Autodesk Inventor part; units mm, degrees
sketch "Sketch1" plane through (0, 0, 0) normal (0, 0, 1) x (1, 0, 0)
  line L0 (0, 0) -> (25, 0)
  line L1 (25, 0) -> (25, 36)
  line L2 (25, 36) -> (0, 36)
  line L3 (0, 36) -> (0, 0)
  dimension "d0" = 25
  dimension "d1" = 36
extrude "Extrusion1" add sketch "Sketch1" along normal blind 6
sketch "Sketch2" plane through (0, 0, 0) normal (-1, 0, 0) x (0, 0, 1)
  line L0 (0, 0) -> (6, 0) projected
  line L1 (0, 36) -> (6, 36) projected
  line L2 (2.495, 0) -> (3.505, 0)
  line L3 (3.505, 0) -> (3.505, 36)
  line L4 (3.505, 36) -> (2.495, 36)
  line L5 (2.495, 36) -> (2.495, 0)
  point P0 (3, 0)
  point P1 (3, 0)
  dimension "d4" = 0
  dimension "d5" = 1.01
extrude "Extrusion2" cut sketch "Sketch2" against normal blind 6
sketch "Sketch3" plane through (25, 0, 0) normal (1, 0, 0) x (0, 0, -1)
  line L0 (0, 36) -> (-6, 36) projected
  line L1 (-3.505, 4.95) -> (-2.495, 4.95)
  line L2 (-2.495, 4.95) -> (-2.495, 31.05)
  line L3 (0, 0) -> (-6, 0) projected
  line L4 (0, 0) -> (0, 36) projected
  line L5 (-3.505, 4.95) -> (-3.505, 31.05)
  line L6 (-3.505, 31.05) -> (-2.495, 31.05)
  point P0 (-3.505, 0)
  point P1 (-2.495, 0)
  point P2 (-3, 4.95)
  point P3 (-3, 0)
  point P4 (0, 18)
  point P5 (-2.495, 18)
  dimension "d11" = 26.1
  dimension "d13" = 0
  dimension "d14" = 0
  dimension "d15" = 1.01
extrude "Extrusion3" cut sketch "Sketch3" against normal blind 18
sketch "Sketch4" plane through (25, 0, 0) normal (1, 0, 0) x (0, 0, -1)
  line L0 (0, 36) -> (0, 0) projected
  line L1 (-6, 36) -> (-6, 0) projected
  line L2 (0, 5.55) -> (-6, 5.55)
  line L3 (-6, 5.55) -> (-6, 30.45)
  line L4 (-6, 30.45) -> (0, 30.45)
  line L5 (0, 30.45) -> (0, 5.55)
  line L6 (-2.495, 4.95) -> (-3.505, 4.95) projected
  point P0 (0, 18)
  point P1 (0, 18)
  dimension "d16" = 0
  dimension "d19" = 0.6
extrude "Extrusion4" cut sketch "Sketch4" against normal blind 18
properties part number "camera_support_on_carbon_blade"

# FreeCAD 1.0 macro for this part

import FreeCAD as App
import Part
import Sketcher

doc = App.newDocument("Part")
body = doc.addObject("PartDesign::Body", "Body")

sketch1 = doc.addObject("Sketcher::SketchObject", "Sketch")
body.addObject(sketch1)
sketch1.AttachmentSupport = (doc.XY_Plane, [""])
sketch1.MapMode = "FlatFace"
sketch1.addGeometry(Part.LineSegment(App.Vector(0, 36, 0), App.Vector(0, 0, 0)), False)
sketch1.addGeometry(Part.LineSegment(App.Vector(0, 0, 0), App.Vector(25, 0, 0)), False)
sketch1.addGeometry(Part.LineSegment(App.Vector(25, 0, 0), App.Vector(25, 36, 0)), False)
sketch1.addGeometry(Part.LineSegment(App.Vector(25, 36, 0), App.Vector(0, 36, 0)), False)
sketch1.addConstraint(Sketcher.Constraint("Coincident", 0, 2, 1, 1))
sketch1.addConstraint(Sketcher.Constraint("Coincident", 1, 2, 2, 1))
sketch1.addConstraint(Sketcher.Constraint("Coincident", 2, 2, 3, 1))
sketch1.addConstraint(Sketcher.Constraint("Coincident", 3, 2, 0, 1))
sketch1.addConstraint(Sketcher.Constraint("Vertical", 0))
sketch1.addConstraint(Sketcher.Constraint("Horizontal", 1))
sketch1.addConstraint(Sketcher.Constraint("Vertical", 2))
sketch1.addConstraint(Sketcher.Constraint("Horizontal", 3))
sketch1.addConstraint(Sketcher.Constraint("Coincident", 0, 2, -1, 1))
sketch1.addConstraint(Sketcher.Constraint("DistanceX", 1, 1, 1, 2, 25.0))
sketch1.addConstraint(Sketcher.Constraint("DistanceY", 0, 2, 0, 1, 36.0))
pad1 = doc.addObject("PartDesign::Pad", "Pad")
body.addObject(pad1)
pad1.Profile = sketch1
pad1.Length = 6

sketch2 = doc.addObject("Sketcher::SketchObject", "Sketch001")
body.addObject(sketch2)
sketch2.AttachmentSupport = (doc.YZ_Plane, [""])
sketch2.MapMode = "FlatFace"
sketch2.addGeometry(Part.LineSegment(App.Vector(36, 2.5, 0), App.Vector(0, 2.5, 0)), False)
sketch2.addGeometry(Part.LineSegment(App.Vector(0, 2.5, 0), App.Vector(0, 3.5, 0)), False)
sketch2.addGeometry(Part.LineSegment(App.Vector(0, 3.5, 0), App.Vector(36, 3.5, 0)), False)
sketch2.addGeometry(Part.LineSegment(App.Vector(36, 3.5, 0), App.Vector(36, 2.5, 0)), False)
sketch2.addConstraint(Sketcher.Constraint("Coincident", 0, 2, 1, 1))
sketch2.addConstraint(Sketcher.Constraint("Coincident", 1, 2, 2, 1))
sketch2.addConstraint(Sketcher.Constraint("Coincident", 2, 2, 3, 1))
sketch2.addConstraint(Sketcher.Constraint("Coincident", 3, 2, 0, 1))
sketch2.addConstraint(Sketcher.Constraint("Horizontal", 0))
sketch2.addConstraint(Sketcher.Constraint("Vertical", 1))
sketch2.addConstraint(Sketcher.Constraint("Horizontal", 2))
sketch2.addConstraint(Sketcher.Constraint("Vertical", 3))
sketch2.addConstraint(Sketcher.Constraint("PointOnObject", 0, 2, -2))
sketch2.addConstraint(Sketcher.Constraint("DistanceY", 1, 1, 1, 2, 1.01))
sketch2.addConstraint(Sketcher.Constraint("DistanceX", 0, 2, 0, 1, 36.0))
sketch2.addConstraint(Sketcher.Constraint("DistanceY", -1, 1, 0, 2, 2.495))
pocket1 = doc.addObject("PartDesign::Pocket", "Pocket")
body.addObject(pocket1)
pocket1.Profile = sketch2
pocket1.Length = 6
pocket1.Reversed = True

sketch3 = doc.addObject("Sketcher::SketchObject", "Sketch002")
body.addObject(sketch3)
sketch3.AttachmentSupport = (doc.YZ_Plane, [""])
sketch3.MapMode = "FlatFace"
sketch3.AttachmentOffset = App.Placement(App.Vector(0, 0, 25), App.Rotation())
sketch3.addGeometry(Part.LineSegment(App.Vector(31.1, 3.5, 0), App.Vector(5, 3.5, 0)), False)
sketch3.addGeometry(Part.LineSegment(App.Vector(5, 3.5, 0), App.Vector(5, 2.5, 0)), False)
sketch3.addGeometry(Part.LineSegment(App.Vector(5, 2.5, 0), App.Vector(31.1, 2.5, 0)), False)
sketch3.addGeometry(Part.LineSegment(App.Vector(31.1, 2.5, 0), App.Vector(31.1, 3.5, 0)), False)
sketch3.addConstraint(Sketcher.Constraint("Coincident", 0, 2, 1, 1))
sketch3.addConstraint(Sketcher.Constraint("Coincident", 1, 2, 2, 1))
sketch3.addConstraint(Sketcher.Constraint("Coincident", 2, 2, 3, 1))
sketch3.addConstraint(Sketcher.Constraint("Coincident", 3, 2, 0, 1))
sketch3.addConstraint(Sketcher.Constraint("Horizontal", 0))
sketch3.addConstraint(Sketcher.Constraint("Vertical", 1))
sketch3.addConstraint(Sketcher.Constraint("Horizontal", 2))
sketch3.addConstraint(Sketcher.Constraint("Vertical", 3))
sketch3.addConstraint(Sketcher.Constraint("DistanceX", 0, 2, 0, 1, 26.1))
sketch3.addConstraint(Sketcher.Constraint("DistanceY", 1, 2, 1, 1, 1.01))
sketch3.addConstraint(Sketcher.Constraint("DistanceX", -1, 1, 0, 2, 4.95))
sketch3.addConstraint(Sketcher.Constraint("DistanceY", -1, 1, 0, 2, 3.505))
pocket2 = doc.addObject("PartDesign::Pocket", "Pocket001")
body.addObject(pocket2)
pocket2.Profile = sketch3
pocket2.Length = 18

sketch4 = doc.addObject("Sketcher::SketchObject", "Sketch003")
body.addObject(sketch4)
sketch4.AttachmentSupport = (doc.YZ_Plane, [""])
sketch4.MapMode = "FlatFace"
sketch4.AttachmentOffset = App.Placement(App.Vector(0, 0, 25), App.Rotation())
sketch4.addGeometry(Part.LineSegment(App.Vector(6, 0, 0), App.Vector(30, 0, 0)), False)
sketch4.addGeometry(Part.LineSegment(App.Vector(30, 0, 0), App.Vector(30, 6, 0)), False)
sketch4.addGeometry(Part.LineSegment(App.Vector(30, 6, 0), App.Vector(6, 6, 0)), False)
sketch4.addGeometry(Part.LineSegment(App.Vector(6, 6, 0), App.Vector(6, 0, 0)), False)
sketch4.addConstraint(Sketcher.Constraint("Coincident", 0, 2, 1, 1))
sketch4.addConstraint(Sketcher.Constraint("Coincident", 1, 2, 2, 1))
sketch4.addConstraint(Sketcher.Constraint("Coincident", 2, 2, 3, 1))
sketch4.addConstraint(Sketcher.Constraint("Coincident", 3, 2, 0, 1))
sketch4.addConstraint(Sketcher.Constraint("Horizontal", 0))
sketch4.addConstraint(Sketcher.Constraint("Vertical", 1))
sketch4.addConstraint(Sketcher.Constraint("Horizontal", 2))
sketch4.addConstraint(Sketcher.Constraint("Vertical", 3))
sketch4.addConstraint(Sketcher.Constraint("PointOnObject", 0, 2, -1))
sketch4.addConstraint(Sketcher.Constraint("DistanceY", 1, 1, 1, 2, 6.0))
sketch4.addConstraint(Sketcher.Constraint("DistanceX", 0, 1, 0, 2, 24.9))
sketch4.addConstraint(Sketcher.Constraint("DistanceX", -1, 1, 0, 2, 30.45))
pocket3 = doc.addObject("PartDesign::Pocket", "Pocket002")
body.addObject(pocket3)
pocket3.Profile = sketch4
pocket3.Length = 18

doc.recompute()
